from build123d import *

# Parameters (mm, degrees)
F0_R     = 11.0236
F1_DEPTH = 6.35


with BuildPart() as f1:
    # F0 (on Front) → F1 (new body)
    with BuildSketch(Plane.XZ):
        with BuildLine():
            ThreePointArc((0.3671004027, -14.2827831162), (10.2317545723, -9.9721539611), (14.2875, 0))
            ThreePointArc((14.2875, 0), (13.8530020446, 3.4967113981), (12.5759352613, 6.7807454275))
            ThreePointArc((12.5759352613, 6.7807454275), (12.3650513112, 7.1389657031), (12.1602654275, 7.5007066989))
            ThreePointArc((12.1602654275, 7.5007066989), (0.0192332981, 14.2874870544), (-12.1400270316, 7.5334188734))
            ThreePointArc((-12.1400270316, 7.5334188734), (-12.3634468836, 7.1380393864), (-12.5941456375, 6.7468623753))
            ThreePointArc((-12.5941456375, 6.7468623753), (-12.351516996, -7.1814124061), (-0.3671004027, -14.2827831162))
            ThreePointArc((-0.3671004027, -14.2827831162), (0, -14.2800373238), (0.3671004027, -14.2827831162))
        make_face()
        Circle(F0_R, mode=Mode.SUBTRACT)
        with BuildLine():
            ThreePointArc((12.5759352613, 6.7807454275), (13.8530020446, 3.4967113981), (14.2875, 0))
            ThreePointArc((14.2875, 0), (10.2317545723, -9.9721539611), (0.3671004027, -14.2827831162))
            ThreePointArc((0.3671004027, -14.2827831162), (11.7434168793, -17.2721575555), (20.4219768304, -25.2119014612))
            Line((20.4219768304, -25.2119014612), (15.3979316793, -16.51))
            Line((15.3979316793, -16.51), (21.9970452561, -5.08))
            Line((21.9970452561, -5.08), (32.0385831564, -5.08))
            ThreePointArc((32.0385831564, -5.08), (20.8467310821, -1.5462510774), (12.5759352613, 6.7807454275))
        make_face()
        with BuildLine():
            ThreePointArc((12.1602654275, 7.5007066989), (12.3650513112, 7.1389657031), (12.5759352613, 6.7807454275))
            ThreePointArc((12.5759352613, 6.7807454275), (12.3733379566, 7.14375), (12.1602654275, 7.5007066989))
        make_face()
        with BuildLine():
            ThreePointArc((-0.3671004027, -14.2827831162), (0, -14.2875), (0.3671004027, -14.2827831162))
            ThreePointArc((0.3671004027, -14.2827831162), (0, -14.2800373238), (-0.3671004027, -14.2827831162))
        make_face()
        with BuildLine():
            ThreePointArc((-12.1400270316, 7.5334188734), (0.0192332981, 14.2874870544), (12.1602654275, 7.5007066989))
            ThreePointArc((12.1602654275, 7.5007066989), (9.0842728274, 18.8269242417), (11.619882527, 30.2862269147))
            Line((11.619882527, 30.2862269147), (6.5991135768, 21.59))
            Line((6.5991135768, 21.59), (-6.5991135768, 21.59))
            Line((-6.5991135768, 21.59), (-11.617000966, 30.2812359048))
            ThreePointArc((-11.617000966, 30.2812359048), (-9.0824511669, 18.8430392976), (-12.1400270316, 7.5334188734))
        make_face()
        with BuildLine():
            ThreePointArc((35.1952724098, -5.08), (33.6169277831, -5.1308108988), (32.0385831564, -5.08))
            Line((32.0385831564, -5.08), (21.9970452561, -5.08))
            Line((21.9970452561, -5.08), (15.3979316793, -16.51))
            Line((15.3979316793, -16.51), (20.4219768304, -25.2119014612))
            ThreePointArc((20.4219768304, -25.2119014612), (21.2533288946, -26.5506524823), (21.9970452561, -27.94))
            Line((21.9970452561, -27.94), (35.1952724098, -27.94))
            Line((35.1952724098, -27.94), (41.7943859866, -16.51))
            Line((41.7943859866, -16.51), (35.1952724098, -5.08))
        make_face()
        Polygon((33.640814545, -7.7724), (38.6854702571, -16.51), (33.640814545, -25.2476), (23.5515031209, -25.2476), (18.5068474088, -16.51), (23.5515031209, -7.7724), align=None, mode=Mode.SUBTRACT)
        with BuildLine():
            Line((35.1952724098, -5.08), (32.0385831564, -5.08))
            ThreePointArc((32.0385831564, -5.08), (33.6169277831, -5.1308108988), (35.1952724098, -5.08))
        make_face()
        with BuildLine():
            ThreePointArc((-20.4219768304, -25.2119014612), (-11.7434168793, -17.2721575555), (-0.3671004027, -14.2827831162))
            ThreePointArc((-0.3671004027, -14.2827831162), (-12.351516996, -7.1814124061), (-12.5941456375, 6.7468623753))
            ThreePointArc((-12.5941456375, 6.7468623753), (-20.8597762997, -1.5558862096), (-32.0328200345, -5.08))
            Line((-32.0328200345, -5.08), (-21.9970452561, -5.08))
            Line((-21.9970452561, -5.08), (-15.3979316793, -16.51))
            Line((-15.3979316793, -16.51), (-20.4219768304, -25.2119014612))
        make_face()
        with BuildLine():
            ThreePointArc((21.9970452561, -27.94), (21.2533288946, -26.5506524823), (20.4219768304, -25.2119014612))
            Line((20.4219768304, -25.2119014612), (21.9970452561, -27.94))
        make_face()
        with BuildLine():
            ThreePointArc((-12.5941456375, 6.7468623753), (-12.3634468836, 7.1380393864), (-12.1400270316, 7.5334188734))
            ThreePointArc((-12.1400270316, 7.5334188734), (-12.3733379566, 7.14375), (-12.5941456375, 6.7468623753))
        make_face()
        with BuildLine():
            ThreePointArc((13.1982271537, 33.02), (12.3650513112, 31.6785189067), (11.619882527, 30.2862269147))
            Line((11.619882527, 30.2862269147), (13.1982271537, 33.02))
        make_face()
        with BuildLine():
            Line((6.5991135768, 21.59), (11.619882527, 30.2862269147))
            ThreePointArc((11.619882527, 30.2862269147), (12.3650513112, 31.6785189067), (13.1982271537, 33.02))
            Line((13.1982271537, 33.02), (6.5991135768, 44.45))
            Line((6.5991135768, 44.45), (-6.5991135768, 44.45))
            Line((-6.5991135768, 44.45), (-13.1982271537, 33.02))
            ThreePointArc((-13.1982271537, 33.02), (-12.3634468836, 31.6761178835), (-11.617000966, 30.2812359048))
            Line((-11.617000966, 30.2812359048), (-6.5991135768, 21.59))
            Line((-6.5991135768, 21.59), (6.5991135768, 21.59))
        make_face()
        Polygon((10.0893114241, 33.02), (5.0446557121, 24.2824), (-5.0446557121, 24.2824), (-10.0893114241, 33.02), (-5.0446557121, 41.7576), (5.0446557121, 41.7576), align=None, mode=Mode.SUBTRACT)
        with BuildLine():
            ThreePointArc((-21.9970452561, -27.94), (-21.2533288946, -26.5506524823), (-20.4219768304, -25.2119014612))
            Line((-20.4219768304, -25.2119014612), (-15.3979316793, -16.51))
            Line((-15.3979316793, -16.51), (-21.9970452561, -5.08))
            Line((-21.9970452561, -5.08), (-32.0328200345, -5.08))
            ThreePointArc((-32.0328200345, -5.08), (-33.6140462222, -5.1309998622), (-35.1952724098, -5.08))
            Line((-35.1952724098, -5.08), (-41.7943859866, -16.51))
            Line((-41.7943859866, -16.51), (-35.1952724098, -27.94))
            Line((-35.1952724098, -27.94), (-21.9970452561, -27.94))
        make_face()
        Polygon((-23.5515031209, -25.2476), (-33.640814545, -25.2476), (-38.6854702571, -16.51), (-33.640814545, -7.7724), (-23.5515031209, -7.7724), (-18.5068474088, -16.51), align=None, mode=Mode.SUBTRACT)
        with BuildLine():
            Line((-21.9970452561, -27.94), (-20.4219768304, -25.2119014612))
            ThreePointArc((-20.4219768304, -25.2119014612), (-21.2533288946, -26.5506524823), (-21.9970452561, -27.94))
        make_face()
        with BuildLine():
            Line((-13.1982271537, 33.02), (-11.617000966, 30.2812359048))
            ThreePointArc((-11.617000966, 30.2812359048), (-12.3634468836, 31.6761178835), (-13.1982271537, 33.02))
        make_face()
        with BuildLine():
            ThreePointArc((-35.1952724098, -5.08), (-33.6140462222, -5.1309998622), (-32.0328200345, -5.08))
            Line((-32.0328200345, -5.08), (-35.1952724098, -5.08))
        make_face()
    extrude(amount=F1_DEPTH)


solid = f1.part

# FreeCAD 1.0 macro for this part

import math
import FreeCAD as App
import Part
import Sketcher

V = App.Vector
Q = App.Units.Quantity

doc = App.newDocument("Part")
body = doc.addObject("PartDesign::Body", "Body")

# Sketch on XZ plane
sketch1 = body.newObject("Sketcher::SketchObject", "Sketch")
sketch1.AttachmentSupport = (doc.getObject("XZ_Plane"), [""])
sketch1.MapMode = "FlatFace"
sketch1.addGeometry(Part.ArcOfCircle(Part.Circle(V(0, -38.821268, 0), V(0, 0, 1), 24.54123), math.radians(33.679801), math.radians(89.142908)), False)
sketch1.addGeometry(Part.LineSegment(V(20.421977, -25.211901, 0), V(21.997045, -27.94, 0)), False)
sketch1.addGeometry(Part.LineSegment(V(21.997045, -27.94, 0), V(35.195272, -27.94, 0)), False)
sketch1.addGeometry(Part.LineSegment(V(35.195272, -27.94, 0), V(41.794386, -16.51, 0)), False)
sketch1.addGeometry(Part.LineSegment(V(41.794386, -16.51, 0), V(35.195272, -5.08, 0)), False)
sketch1.addGeometry(Part.LineSegment(V(35.195272, -5.08, 0), V(32.038583, -5.08, 0)), False)
sketch1.addGeometry(Part.ArcOfCircle(Part.Circle(V(33.616928, 19.408742, 0), V(0, 0, 1), 24.539553), math.radians(-149.029434), math.radians(-93.687718)), False)
sketch1.addGeometry(Part.ArcOfCircle(Part.Circle(V(0, 0, 0), V(0, 0, 1), 14.2875), math.radians(28.332844), math.radians(31.667156)), False)
sketch1.addGeometry(Part.ArcOfCircle(Part.Circle(V(33.616928, 19.408742, 0), V(0, 0, 1), 24.539553), math.radians(153.687718), math.radians(209.029434)), False)
sketch1.addGeometry(Part.LineSegment(V(11.619883, 30.286227, 0), V(13.198227, 33.02, 0)), False)
sketch1.addGeometry(Part.LineSegment(V(13.198227, 33.02, 0), V(6.599114, 44.45, 0)), False)
sketch1.addGeometry(Part.LineSegment(V(6.599114, 44.45, 0), V(-6.599114, 44.45, 0)), False)
sketch1.addGeometry(Part.LineSegment(V(-6.599114, 44.45, 0), V(-13.198227, 33.02, 0)), False)
sketch1.addGeometry(Part.LineSegment(V(-13.198227, 33.02, 0), V(-11.617001, 30.281236, 0)), False)
sketch1.addGeometry(Part.ArcOfCircle(Part.Circle(V(-33.614046, 19.407079, 0), V(0, 0, 1), 24.538078), math.radians(-28.939584), math.radians(26.305318)), False)
sketch1.addGeometry(Part.ArcOfCircle(Part.Circle(V(0, 0, 0), V(0, 0, 1), 14.2875), math.radians(148.178585), math.radians(151.821415)), False)
sketch1.addGeometry(Part.ArcOfCircle(Part.Circle(V(-33.614046, 19.407079, 0), V(0, 0, 1), 24.538078), math.radians(-86.305318), math.radians(-31.060416)), False)
sketch1.addGeometry(Part.LineSegment(V(-32.03282, -5.08, 0), V(-35.195272, -5.08, 0)), False)
sketch1.addGeometry(Part.LineSegment(V(-35.195272, -5.08, 0), V(-41.794386, -16.51, 0)), False)
sketch1.addGeometry(Part.LineSegment(V(-41.794386, -16.51, 0), V(-35.195272, -27.94, 0)), False)
sketch1.addGeometry(Part.LineSegment(V(-35.195272, -27.94, 0), V(-21.997045, -27.94, 0)), False)
sketch1.addGeometry(Part.LineSegment(V(-21.997045, -27.94, 0), V(-20.421977, -25.211901, 0)), False)
sketch1.addGeometry(Part.ArcOfCircle(Part.Circle(V(0, -38.821268, 0), V(0, 0, 1), 24.54123), math.radians(90.857092), math.radians(146.320199)), False)
sketch1.addGeometry(Part.ArcOfCircle(Part.Circle(V(0, 0, 0), V(0, 0, 1), 14.2875), math.radians(-91.472309), math.radians(-88.527691)), False)
sketch1.addGeometry(Part.LineSegment(V(-18.506847, -16.51, 0), V(-23.551503, -25.2476, 0)), False)
sketch1.addGeometry(Part.LineSegment(V(-23.551503, -25.2476, 0), V(-33.640815, -25.2476, 0)), False)
sketch1.addGeometry(Part.LineSegment(V(-33.640815, -25.2476, 0), V(-38.68547, -16.51, 0)), False)
sketch1.addGeometry(Part.LineSegment(V(-38.68547, -16.51, 0), V(-33.640815, -7.7724, 0)), False)
sketch1.addGeometry(Part.LineSegment(V(-33.640815, -7.7724, 0), V(-23.551503, -7.7724, 0)), False)
sketch1.addGeometry(Part.LineSegment(V(-23.551503, -7.7724, 0), V(-18.506847, -16.51, 0)), False)
sketch1.addGeometry(Part.LineSegment(V(23.551503, -7.7724, 0), V(33.640815, -7.7724, 0)), False)
sketch1.addGeometry(Part.LineSegment(V(33.640815, -7.7724, 0), V(38.68547, -16.51, 0)), False)
sketch1.addGeometry(Part.LineSegment(V(38.68547, -16.51, 0), V(33.640815, -25.2476, 0)), False)
sketch1.addGeometry(Part.LineSegment(V(33.640815, -25.2476, 0), V(23.551503, -25.2476, 0)), False)
sketch1.addGeometry(Part.LineSegment(V(23.551503, -25.2476, 0), V(18.506847, -16.51, 0)), False)
sketch1.addGeometry(Part.LineSegment(V(18.506847, -16.51, 0), V(23.551503, -7.7724, 0)), False)
sketch1.addGeometry(Part.Circle(V(0, 0, 0), V(0, 0, 1), 11.0236), False)
sketch1.addGeometry(Part.LineSegment(V(5.044656, 41.7576, 0), V(10.089311, 33.02, 0)), False)
sketch1.addGeometry(Part.LineSegment(V(10.089311, 33.02, 0), V(5.044656, 24.2824, 0)), False)
sketch1.addGeometry(Part.LineSegment(V(5.044656, 24.2824, 0), V(-5.044656, 24.2824, 0)), False)
sketch1.addGeometry(Part.LineSegment(V(-5.044656, 24.2824, 0), V(-10.089311, 33.02, 0)), False)
sketch1.addGeometry(Part.LineSegment(V(-10.089311, 33.02, 0), V(-5.044656, 41.7576, 0)), False)
sketch1.addGeometry(Part.LineSegment(V(-5.044656, 41.7576, 0), V(5.044656, 41.7576, 0)), False)
sketch1.addConstraint(Sketcher.Constraint("Coincident", 0, 1, 1, 1))
sketch1.addConstraint(Sketcher.Constraint("Coincident", 1, 2, 2, 1))
sketch1.addConstraint(Sketcher.Constraint("Coincident", 2, 2, 3, 1))
sketch1.addConstraint(Sketcher.Constraint("Coincident", 3, 2, 4, 1))
sketch1.addConstraint(Sketcher.Constraint("Coincident", 4, 2, 5, 1))
sketch1.addConstraint(Sketcher.Constraint("Coincident", 5, 2, 6, 2))
sketch1.addConstraint(Sketcher.Constraint("Coincident", 6, 1, 7, 1))
sketch1.addConstraint(Sketcher.Constraint("Coincident", 7, 2, 8, 2))
sketch1.addConstraint(Sketcher.Constraint("Coincident", 8, 1, 9, 1))
sketch1.addConstraint(Sketcher.Constraint("Coincident", 9, 2, 10, 1))
sketch1.addConstraint(Sketcher.Constraint("Coincident", 10, 2, 11, 1))
sketch1.addConstraint(Sketcher.Constraint("Coincident", 11, 2, 12, 1))
sketch1.addConstraint(Sketcher.Constraint("Coincident", 12, 2, 13, 1))
sketch1.addConstraint(Sketcher.Constraint("Coincident", 13, 2, 14, 2))
sketch1.addConstraint(Sketcher.Constraint("Coincident", 14, 1, 15, 1))
sketch1.addConstraint(Sketcher.Constraint("Coincident", 15, 2, 16, 2))
sketch1.addConstraint(Sketcher.Constraint("Coincident", 16, 1, 17, 1))
sketch1.addConstraint(Sketcher.Constraint("Coincident", 17, 2, 18, 1))
sketch1.addConstraint(Sketcher.Constraint("Coincident", 18, 2, 19, 1))
sketch1.addConstraint(Sketcher.Constraint("Coincident", 19, 2, 20, 1))
sketch1.addConstraint(Sketcher.Constraint("Coincident", 20, 2, 21, 1))
sketch1.addConstraint(Sketcher.Constraint("Coincident", 21, 2, 22, 2))
sketch1.addConstraint(Sketcher.Constraint("Coincident", 22, 1, 23, 1))
sketch1.addConstraint(Sketcher.Constraint("Coincident", 23, 2, 0, 2))
sketch1.addConstraint(Sketcher.Constraint("Coincident", 24, 2, 25, 1))
sketch1.addConstraint(Sketcher.Constraint("Coincident", 25, 2, 26, 1))
sketch1.addConstraint(Sketcher.Constraint("Coincident", 26, 2, 27, 1))
sketch1.addConstraint(Sketcher.Constraint("Coincident", 27, 2, 28, 1))
sketch1.addConstraint(Sketcher.Constraint("Coincident", 28, 2, 29, 1))
sketch1.addConstraint(Sketcher.Constraint("Coincident", 29, 2, 24, 1))
sketch1.addConstraint(Sketcher.Constraint("Coincident", 30, 2, 31, 1))
sketch1.addConstraint(Sketcher.Constraint("Coincident", 31, 2, 32, 1))
sketch1.addConstraint(Sketcher.Constraint("Coincident", 32, 2, 33, 1))
sketch1.addConstraint(Sketcher.Constraint("Coincident", 33, 2, 34, 1))
sketch1.addConstraint(Sketcher.Constraint("Coincident", 34, 2, 35, 1))
sketch1.addConstraint(Sketcher.Constraint("Coincident", 35, 2, 30, 1))
sketch1.addConstraint(Sketcher.Constraint("Coincident", 37, 2, 38, 1))
sketch1.addConstraint(Sketcher.Constraint("Coincident", 38, 2, 39, 1))
sketch1.addConstraint(Sketcher.Constraint("Coincident", 39, 2, 40, 1))
sketch1.addConstraint(Sketcher.Constraint("Coincident", 40, 2, 41, 1))
sketch1.addConstraint(Sketcher.Constraint("Coincident", 41, 2, 42, 1))
sketch1.addConstraint(Sketcher.Constraint("Coincident", 42, 2, 37, 1))
sketch1.addConstraint(Sketcher.Constraint("Horizontal", 2))
sketch1.addConstraint(Sketcher.Constraint("Horizontal", 5))
sketch1.addConstraint(Sketcher.Constraint("Horizontal", 11))
sketch1.addConstraint(Sketcher.Constraint("Horizontal", 17))
sketch1.addConstraint(Sketcher.Constraint("Horizontal", 20))
sketch1.addConstraint(Sketcher.Constraint("Horizontal", 25))
sketch1.addConstraint(Sketcher.Constraint("Horizontal", 28))
sketch1.addConstraint(Sketcher.Constraint("Horizontal", 30))
sketch1.addConstraint(Sketcher.Constraint("Horizontal", 33))
sketch1.addConstraint(Sketcher.Constraint("Horizontal", 39))
sketch1.addConstraint(Sketcher.Constraint("Horizontal", 42))
sketch1.addConstraint(Sketcher.Constraint("Coincident", 7, 3, -1, 1))
sketch1.addConstraint(Sketcher.Constraint("Coincident", 15, 3, -1, 1))
sketch1.addConstraint(Sketcher.Constraint("Coincident", 23, 3, -1, 1))
sketch1.addConstraint(Sketcher.Constraint("Coincident", 36, 3, -1, 1))
sketch1.addConstraint(Sketcher.Constraint("Coincident", 8, 3, 6, 3))
sketch1.addConstraint(Sketcher.Constraint("Coincident", 16, 3, 14, 3))
sketch1.addConstraint(Sketcher.Constraint("Coincident", 22, 3, 0, 3))
sketch1.addConstraint(Sketcher.Constraint("PointOnObject", 0, 3, -2))
sketch1.addConstraint(Sketcher.Constraint("Diameter", 36, Q("0.868 in")))
sketch1.addConstraint(Sketcher.Constraint("Radius", 7, Q("0.5625 in")))
sketch1.addConstraint(Sketcher.Constraint("Radius", 15, Q("0.5625 in")))
sketch1.addConstraint(Sketcher.Constraint("Radius", 23, Q("0.5625 in")))
sketch1.addConstraint(Sketcher.Constraint("DistanceY", 1, 2, -1, 1, Q("1.1 in")))
sketch1.addConstraint(Sketcher.Constraint("DistanceY", 4, 2, -1, 1, Q("0.2 in")))
sketch1.addConstraint(Sketcher.Constraint("DistanceY", -1, 1, 9, 2, Q("1.3 in")))
sketch1.addConstraint(Sketcher.Constraint("DistanceY", -1, 1, 12, 2, Q("1.3 in")))
sketch1.addConstraint(Sketcher.Constraint("DistanceY", 16, 1, -1, 1, Q("0.2 in")))
sketch1.addConstraint(Sketcher.Constraint("DistanceY", 19, 2, -1, 1, Q("1.1 in")))
sketch1.addConstraint(Sketcher.Constraint("DistanceY", -1, 1, 37, 2, Q("1.3 in")))
sketch1.addConstraint(Sketcher.Constraint("DistanceY", -1, 1, 40, 2, Q("1.3 in")))
sketch1.addConstraint(Sketcher.Constraint("DistanceY", 3, 2, -1, 1, Q("0.65 in")))
sketch1.addConstraint(Sketcher.Constraint("DistanceY", -1, 1, 10, 2, Q("1.75 in")))
sketch1.addConstraint(Sketcher.Constraint("DistanceY", 18, 2, -1, 1, Q("0.65 in")))
sketch1.addConstraint(Sketcher.Constraint("DistanceY", 26, 2, -1, 1, Q("0.65 in")))
sketch1.addConstraint(Sketcher.Constraint("DistanceY", 29, 2, -1, 1, Q("0.65 in")))
sketch1.addConstraint(Sketcher.Constraint("DistanceY", 31, 2, -1, 1, Q("0.65 in")))
sketch1.addConstraint(Sketcher.Constraint("DistanceY", 34, 2, -1, 1, Q("0.65 in")))
sketch1.addConstraint(Sketcher.Constraint("DistanceY", 24, 2, -1, 1, Q("0.994 in")))
sketch1.addConstraint(Sketcher.Constraint("DistanceY", 27, 2, -1, 1, Q("0.306 in")))
sketch1.addConstraint(Sketcher.Constraint("DistanceY", 30, 2, -1, 1, Q("0.306 in")))
sketch1.addConstraint(Sketcher.Constraint("DistanceY", 32, 2, -1, 1, Q("0.994 in")))
sketch1.addConstraint(Sketcher.Constraint("DistanceY", -1, 1, 38, 2, Q("0.956 in")))
sketch1.addConstraint(Sketcher.Constraint("DistanceY", -1, 1, 41, 2, Q("1.644 in")))
sketch1.addConstraint(Sketcher.Constraint("Radius", 0, Q("24.54123 mm")))
sketch1.addConstraint(Sketcher.Constraint("Radius", 14, Q("24.538078 mm")))
sketch1.addConstraint(Sketcher.Constraint("Radius", 16, Q("24.538078 mm")))
sketch1.addConstraint(Sketcher.Constraint("Radius", 22, Q("24.54123 mm")))
sketch1.addConstraint(Sketcher.Constraint("Radius", 6, Q("24.539553 mm")))
sketch1.addConstraint(Sketcher.Constraint("Radius", 8, Q("24.539553 mm")))
sketch1.addConstraint(Sketcher.Constraint("DistanceX", 5, 2, 5, 1, Q("3.156689 mm")))
sketch1.addConstraint(Sketcher.Constraint("DistanceX", 25, 2, 25, 1, Q("10.089311 mm")))
sketch1.addConstraint(Sketcher.Constraint("DistanceX", 28, 1, 28, 2, Q("10.089311 mm")))
sketch1.addConstraint(Sketcher.Constraint("DistanceX", 30, 1, 30, 2, Q("10.089311 mm")))
sketch1.addConstraint(Sketcher.Constraint("DistanceX", 33, 2, 33, 1, Q("10.089311 mm")))
sketch1.addConstraint(Sketcher.Constraint("DistanceX", 39, 2, 39, 1, Q("10.089311 mm")))
sketch1.addConstraint(Sketcher.Constraint("DistanceX", 42, 1, 42, 2, Q("10.089311 mm")))
sketch1.addConstraint(Sketcher.Constraint("DistanceY", 0, 1, -1, 1, Q("25.211901 mm")))
sketch1.addConstraint(Sketcher.Constraint("DistanceX", 13, 2, -1, 1, Q("11.617001 mm")))
sketch1.addConstraint(Sketcher.Constraint("DistanceY", 21, 2, -1, 1, Q("25.211901 mm")))
sketch1.addConstraint(Sketcher.Constraint("DistanceX", 22, 1, -1, 1, Q("0.3671 mm")))
sketch1.addConstraint(Sketcher.Constraint("DistanceX", 9, 2, 6, 3, Q("20.418701 mm")))
sketch1.addConstraint(Sketcher.Constraint("Distance", 9, Q("3.156689 mm")))
sketch1.addConstraint(Sketcher.Constraint("Distance", 24, Q("10.089311 mm")))
sketch1.addConstraint(Sketcher.Constraint("Distance", 26, Q("10.089311 mm")))
sketch1.addConstraint(Sketcher.Constraint("Distance", 27, Q("10.089311 mm")))
sketch1.addConstraint(Sketcher.Constraint("Distance", 31, Q("10.089311 mm")))
sketch1.addConstraint(Sketcher.Constraint("Distance", 32, Q("10.089311 mm")))
sketch1.addConstraint(Sketcher.Constraint("Distance", 34, Q("10.089311 mm")))
sketch1.addConstraint(Sketcher.Constraint("Distance", 37, Q("10.089311 mm")))
sketch1.addConstraint(Sketcher.Constraint("Distance", 38, Q("10.089311 mm")))
sketch1.addConstraint(Sketcher.Constraint("Distance", 40, Q("10.089311 mm")))
sketch1.addConstraint(Sketcher.Constraint("DistanceX", 2, 1, 2, 2, Q("13.198227 mm")))
sketch1.addConstraint(Sketcher.Constraint("DistanceX", 11, 2, 11, 1, Q("13.198227 mm")))
sketch1.addConstraint(Sketcher.Constraint("DistanceX", 17, 2, 17, 1, Q("3.162452 mm")))
sketch1.addConstraint(Sketcher.Constraint("DistanceX", 20, 1, 20, 2, Q("13.198227 mm")))
sketch1.addConstraint(Sketcher.Constraint("DistanceY", -1, 1, 14, 3, Q("19.407079 mm")))
sketch1.addConstraint(Sketcher.Constraint("DistanceY", -1, 1, 14, 1, Q("7.533419 mm")))
sketch1.addConstraint(Sketcher.Constraint("DistanceX", 26, 2, -1, 1, Q("38.68547 mm")))
sketch1.addConstraint(Sketcher.Constraint("DistanceX", -1, 1, 31, 2, Q("38.68547 mm")))
sketch1.addConstraint(Sketcher.Constraint("DistanceX", -1, 1, 37, 2, Q("10.089311 mm")))
sketch1.addConstraint(Sketcher.Constraint("DistanceY", 0, 3, 6, 3, Q("58.23001 mm")))
sketch1.addConstraint(Sketcher.Constraint("DistanceX", 0, 1, 1, 2, Q("1.575068 mm")))
sketch1.addConstraint(Sketcher.Constraint("DistanceX", 1, 2, 3, 2, Q("19.797341 mm")))
sketch1.addConstraint(Sketcher.Constraint("DistanceX", 6, 3, 3, 2, Q("8.177458 mm")))
sketch1.addConstraint(Sketcher.Constraint("DistanceX", 10, 2, 8, 1, Q("5.020769 mm")))
sketch1.addConstraint(Sketcher.Constraint("DistanceX", 12, 2, 10, 2, Q("19.797341 mm")))
sketch1.addConstraint(Sketcher.Constraint("DistanceX", 18, 2, 14, 3, Q("8.18034 mm")))
sketch1.addConstraint(Sketcher.Constraint("DistanceX", 18, 2, 20, 2, Q("19.797341 mm")))
pad1 = body.newObject("PartDesign::Pad", "Pad")
pad1.Profile = sketch1
pad1.Length = Q("0.25 in")

doc.recompute()
